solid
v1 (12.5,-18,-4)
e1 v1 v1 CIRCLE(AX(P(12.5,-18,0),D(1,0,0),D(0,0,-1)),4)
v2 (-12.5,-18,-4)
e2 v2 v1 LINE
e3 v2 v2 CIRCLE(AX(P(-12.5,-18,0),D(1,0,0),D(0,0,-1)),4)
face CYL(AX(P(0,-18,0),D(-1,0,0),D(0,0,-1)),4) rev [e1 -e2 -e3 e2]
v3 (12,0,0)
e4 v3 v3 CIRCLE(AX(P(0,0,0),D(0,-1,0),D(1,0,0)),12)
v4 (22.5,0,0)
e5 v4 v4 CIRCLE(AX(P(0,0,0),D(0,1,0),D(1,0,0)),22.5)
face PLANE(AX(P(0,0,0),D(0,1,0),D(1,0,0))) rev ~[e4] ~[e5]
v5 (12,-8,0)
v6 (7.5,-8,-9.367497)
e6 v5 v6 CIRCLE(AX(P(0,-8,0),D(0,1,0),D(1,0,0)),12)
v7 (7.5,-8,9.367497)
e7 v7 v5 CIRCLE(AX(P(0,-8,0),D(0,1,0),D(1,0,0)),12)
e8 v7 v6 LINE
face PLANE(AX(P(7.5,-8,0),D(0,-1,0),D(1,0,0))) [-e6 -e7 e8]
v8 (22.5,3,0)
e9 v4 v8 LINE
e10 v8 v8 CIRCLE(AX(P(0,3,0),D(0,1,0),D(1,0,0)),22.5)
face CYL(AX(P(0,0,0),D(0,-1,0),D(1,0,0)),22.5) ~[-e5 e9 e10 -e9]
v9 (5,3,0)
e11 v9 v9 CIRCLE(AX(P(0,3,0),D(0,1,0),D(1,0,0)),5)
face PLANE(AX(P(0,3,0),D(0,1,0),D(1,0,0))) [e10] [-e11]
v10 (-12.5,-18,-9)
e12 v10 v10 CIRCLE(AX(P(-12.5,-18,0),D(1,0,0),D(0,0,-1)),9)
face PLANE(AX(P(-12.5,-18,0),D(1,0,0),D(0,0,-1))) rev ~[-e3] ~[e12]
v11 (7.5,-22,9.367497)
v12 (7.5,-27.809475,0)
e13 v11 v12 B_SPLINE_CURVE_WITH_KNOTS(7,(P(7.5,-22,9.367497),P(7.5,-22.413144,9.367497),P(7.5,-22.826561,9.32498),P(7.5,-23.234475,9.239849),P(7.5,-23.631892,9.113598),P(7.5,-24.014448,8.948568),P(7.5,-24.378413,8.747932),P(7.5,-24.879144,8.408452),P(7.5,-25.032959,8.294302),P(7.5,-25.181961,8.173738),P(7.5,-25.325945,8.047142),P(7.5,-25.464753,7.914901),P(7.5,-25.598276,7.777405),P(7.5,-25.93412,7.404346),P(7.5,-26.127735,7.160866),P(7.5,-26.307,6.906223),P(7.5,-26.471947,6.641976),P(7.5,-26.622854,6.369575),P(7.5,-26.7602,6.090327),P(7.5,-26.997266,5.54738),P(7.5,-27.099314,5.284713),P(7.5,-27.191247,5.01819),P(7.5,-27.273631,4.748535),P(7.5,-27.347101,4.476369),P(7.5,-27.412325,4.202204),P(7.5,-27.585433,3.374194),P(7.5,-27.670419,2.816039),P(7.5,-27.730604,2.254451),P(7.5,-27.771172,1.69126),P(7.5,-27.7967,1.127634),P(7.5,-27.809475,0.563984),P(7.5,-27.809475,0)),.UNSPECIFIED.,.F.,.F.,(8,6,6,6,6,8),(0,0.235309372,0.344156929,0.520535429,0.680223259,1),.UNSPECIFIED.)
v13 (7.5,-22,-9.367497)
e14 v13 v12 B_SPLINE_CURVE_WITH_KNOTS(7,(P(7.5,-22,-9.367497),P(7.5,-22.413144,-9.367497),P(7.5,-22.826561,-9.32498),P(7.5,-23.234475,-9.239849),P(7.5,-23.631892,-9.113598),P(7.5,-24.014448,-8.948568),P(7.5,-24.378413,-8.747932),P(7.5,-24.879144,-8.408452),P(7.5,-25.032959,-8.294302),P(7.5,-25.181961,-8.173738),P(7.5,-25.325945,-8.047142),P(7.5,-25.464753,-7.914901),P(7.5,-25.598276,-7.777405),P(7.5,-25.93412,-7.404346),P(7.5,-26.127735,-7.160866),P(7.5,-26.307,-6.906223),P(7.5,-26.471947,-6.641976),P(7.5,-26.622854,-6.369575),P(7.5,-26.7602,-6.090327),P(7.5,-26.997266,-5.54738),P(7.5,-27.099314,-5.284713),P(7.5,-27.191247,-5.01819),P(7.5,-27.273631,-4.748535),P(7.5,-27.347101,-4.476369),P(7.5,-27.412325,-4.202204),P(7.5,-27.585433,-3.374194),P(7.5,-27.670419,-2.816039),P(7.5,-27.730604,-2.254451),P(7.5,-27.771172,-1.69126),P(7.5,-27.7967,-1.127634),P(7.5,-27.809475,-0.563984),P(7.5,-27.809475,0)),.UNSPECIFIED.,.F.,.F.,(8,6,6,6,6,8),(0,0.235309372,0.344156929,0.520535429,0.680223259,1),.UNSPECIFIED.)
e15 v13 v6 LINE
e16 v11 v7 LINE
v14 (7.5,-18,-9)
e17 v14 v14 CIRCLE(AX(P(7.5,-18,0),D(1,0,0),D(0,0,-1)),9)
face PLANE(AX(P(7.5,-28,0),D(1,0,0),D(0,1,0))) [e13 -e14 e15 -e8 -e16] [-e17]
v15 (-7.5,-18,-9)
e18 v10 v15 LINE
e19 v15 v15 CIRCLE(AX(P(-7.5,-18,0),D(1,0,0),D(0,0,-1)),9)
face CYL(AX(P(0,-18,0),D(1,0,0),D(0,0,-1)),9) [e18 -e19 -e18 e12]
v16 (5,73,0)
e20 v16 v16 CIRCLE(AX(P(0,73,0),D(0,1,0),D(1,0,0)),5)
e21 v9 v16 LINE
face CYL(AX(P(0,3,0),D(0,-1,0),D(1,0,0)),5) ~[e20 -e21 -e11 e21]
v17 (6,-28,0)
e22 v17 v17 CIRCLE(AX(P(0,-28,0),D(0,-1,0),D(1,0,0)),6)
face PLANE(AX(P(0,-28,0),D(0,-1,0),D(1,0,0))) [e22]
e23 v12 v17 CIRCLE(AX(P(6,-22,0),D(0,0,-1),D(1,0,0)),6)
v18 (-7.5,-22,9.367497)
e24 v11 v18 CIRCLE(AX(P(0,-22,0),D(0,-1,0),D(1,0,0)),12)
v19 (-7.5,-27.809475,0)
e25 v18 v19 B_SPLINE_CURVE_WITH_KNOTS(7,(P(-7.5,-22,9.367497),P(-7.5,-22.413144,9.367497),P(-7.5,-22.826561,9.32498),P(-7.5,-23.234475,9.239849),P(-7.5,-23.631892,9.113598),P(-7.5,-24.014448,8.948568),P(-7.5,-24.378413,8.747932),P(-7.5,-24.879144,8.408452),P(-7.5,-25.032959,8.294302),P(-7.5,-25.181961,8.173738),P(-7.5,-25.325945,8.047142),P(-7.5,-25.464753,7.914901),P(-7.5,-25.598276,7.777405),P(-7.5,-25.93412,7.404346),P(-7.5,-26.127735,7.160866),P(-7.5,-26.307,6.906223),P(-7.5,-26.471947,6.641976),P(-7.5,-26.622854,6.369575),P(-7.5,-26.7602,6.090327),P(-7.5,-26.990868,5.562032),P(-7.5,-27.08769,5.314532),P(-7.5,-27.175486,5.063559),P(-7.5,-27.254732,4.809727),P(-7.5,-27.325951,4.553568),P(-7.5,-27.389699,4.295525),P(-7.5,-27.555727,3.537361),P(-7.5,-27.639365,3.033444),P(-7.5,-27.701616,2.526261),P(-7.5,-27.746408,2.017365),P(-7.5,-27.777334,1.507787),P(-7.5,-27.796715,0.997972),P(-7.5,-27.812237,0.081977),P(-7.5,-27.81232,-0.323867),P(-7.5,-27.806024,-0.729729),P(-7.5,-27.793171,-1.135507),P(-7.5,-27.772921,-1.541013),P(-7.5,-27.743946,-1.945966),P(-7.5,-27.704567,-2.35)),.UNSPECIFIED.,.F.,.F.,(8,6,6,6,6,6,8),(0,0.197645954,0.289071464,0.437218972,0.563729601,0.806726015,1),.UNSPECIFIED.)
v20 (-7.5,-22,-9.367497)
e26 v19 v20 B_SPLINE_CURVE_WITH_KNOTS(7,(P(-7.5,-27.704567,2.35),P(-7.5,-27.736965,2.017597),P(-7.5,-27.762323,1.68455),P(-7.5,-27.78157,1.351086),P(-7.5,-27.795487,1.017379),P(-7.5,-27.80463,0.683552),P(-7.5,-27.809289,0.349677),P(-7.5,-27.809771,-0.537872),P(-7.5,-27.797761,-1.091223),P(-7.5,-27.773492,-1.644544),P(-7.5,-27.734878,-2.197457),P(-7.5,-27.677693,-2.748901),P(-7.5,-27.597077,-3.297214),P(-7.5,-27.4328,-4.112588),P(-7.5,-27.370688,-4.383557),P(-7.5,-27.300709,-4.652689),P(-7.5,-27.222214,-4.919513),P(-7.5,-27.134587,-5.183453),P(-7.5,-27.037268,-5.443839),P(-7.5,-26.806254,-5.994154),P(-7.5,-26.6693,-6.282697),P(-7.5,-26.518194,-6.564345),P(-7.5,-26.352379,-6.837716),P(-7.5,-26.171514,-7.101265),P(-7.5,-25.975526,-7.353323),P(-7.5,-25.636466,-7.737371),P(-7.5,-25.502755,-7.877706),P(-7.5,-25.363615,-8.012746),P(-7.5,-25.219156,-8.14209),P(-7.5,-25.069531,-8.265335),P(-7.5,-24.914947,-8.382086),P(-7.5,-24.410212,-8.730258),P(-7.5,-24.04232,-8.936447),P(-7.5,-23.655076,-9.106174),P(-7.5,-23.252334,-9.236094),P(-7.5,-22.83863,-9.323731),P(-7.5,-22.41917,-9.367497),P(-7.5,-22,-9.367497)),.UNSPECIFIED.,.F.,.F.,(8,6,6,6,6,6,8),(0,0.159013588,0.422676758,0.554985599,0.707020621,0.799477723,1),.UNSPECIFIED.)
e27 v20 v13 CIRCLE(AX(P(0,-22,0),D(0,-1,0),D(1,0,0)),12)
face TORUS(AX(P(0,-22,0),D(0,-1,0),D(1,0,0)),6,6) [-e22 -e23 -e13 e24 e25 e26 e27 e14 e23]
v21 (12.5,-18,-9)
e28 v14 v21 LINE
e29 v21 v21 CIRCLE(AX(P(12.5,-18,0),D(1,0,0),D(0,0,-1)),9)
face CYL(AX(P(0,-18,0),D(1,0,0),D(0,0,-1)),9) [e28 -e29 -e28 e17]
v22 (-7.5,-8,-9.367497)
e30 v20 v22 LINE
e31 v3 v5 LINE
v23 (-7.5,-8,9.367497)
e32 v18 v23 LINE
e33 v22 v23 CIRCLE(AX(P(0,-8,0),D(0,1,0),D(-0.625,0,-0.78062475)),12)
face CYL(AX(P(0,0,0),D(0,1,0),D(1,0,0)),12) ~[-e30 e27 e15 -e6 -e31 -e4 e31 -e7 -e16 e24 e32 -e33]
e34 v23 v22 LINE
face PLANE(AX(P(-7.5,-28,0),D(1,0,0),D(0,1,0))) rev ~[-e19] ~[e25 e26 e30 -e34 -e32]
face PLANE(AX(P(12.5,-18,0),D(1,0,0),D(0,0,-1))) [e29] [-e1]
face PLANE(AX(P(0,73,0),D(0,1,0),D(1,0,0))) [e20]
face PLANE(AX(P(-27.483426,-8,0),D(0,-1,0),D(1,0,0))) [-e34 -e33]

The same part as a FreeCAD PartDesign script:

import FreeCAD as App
import Part
import Sketcher
from FreeCAD import Vector
Q = App.Units.Quantity


def edges_at(feature, points):
    """Names of the edges that pass closest to the given points."""
    edges = feature.Shape.Edges
    near = lambda p: min(range(len(edges)), key=lambda i: edges[i].distToShape(Part.Vertex(*p))[0])
    return sorted({f"Edge{near(p) + 1}" for p in points})


def add_polygon(sketch, points):
    """Adds a closed chain of lines whose ends are joined by coincident constraints."""
    first, n = sketch.GeometryCount, len(points)
    for a, b in zip(points, points[1:] + points[:1]):
        sketch.addGeometry(Part.LineSegment(App.Vector(*a, 0), App.Vector(*b, 0)), False)
    for i in range(n):
        sketch.addConstraint(Sketcher.Constraint("Coincident", first + i, 2, first + (i + 1) % n, 1))

doc = App.newDocument("Part")
body = doc.addObject("PartDesign::Body", "Body")

sketch1 = body.newObject("Sketcher::SketchObject", "Sketch")
sketch1.AttachmentSupport = (doc.getObject("XZ_Plane"), [""])
sketch1.MapMode = "FlatFace"
sketch1.addGeometry(Part.Circle(Vector(0, 0, 0), Vector(0, 0, 1), 22), False)
sketch1.addConstraint(Sketcher.Constraint("Coincident", 0, 3, -1, 1))
sketch1.addConstraint(Sketcher.Constraint("Diameter", 0, Q("45 mm")))
pad1 = body.newObject("PartDesign::Pad", "Pad")
pad1.Profile = sketch1
pad1.Length = 3
pad1.Reversed = True

sketch2 = body.newObject("Sketcher::SketchObject", "Sketch001")
sketch2.AttachmentSupport = (doc.getObject("XZ_Plane"), [""])
sketch2.MapMode = "FlatFace"
sketch2.AttachmentOffset = App.Placement(Vector(0, 0, -3), App.Rotation())
sketch2.addGeometry(Part.Circle(Vector(0, 0, 0), Vector(0, 0, 1), 5), False)
sketch2.addConstraint(Sketcher.Constraint("Coincident", 0, 3, -1, 1))
sketch2.addConstraint(Sketcher.Constraint("Diameter", 0, Q("10 mm")))
pad2 = body.newObject("PartDesign::Pad", "Pad001")
pad2.Profile = sketch2
pad2.Length = 70
pad2.Reversed = True

sketch3 = body.newObject("Sketcher::SketchObject", "Sketch002")
sketch3.AttachmentSupport = (doc.getObject("XZ_Plane"), [""])
sketch3.MapMode = "FlatFace"
sketch3.addGeometry(Part.Circle(Vector(0, 0, 0), Vector(0, 0, 1), 12), False)
sketch3.addConstraint(Sketcher.Constraint("Coincident", 0, 3, -1, 1))
sketch3.addConstraint(Sketcher.Constraint("Diameter", 0, Q("24 mm")))
pad3 = body.newObject("PartDesign::Pad", "Pad002")
pad3.Profile = sketch3
pad3.Length = 28
doc.recompute()

fillet = body.newObject("PartDesign::Fillet", "Fillet")
fillet.Base = (pad3, edges_at(pad3, [(-12, -28, 0)]))
fillet.Radius = 6

sketch4 = body.newObject("Sketcher::SketchObject", "Sketch003")
sketch4.AttachmentSupport = (doc.getObject("XY_Plane"), [""])
sketch4.MapMode = "FlatFace"
add_polygon(sketch4, [(8, -8), (8, -28), (27, -28), (27, -8)])
add_polygon(sketch4, [(-27, -8), (-27, -28), (-8, -28), (-8, -8)])
sketch4.addConstraint(Sketcher.Constraint("Vertical", 0))
sketch4.addConstraint(Sketcher.Constraint("Horizontal", 1))
sketch4.addConstraint(Sketcher.Constraint("Vertical", 2))
sketch4.addConstraint(Sketcher.Constraint("Horizontal", 3))
sketch4.addConstraint(Sketcher.Constraint("Vertical", 4))
sketch4.addConstraint(Sketcher.Constraint("Horizontal", 5))
sketch4.addConstraint(Sketcher.Constraint("Vertical", 6))
sketch4.addConstraint(Sketcher.Constraint("Horizontal", 7))
sketch4.addConstraint(Sketcher.Constraint("Symmetric", 1, 2, 4, 2, -2))
sketch4.addConstraint(Sketcher.Constraint("Symmetric", 3, 2, 6, 2, -2))
sketch4.addConstraint(Sketcher.Constraint("DistanceY", 0, 2, 0, 1, Q("20 mm")))
sketch4.addConstraint(Sketcher.Constraint("DistanceY", 0, 2, -1, 1, Q("28 mm")))
sketch4.addConstraint(Sketcher.Constraint("DistanceX", 5, 2, 0, 2, Q("15 mm")))
sketch4.addConstraint(Sketcher.Constraint("DistanceX", 1, 1, 1, 2, Q("19.983426 mm")))
pocket1 = body.newObject("PartDesign::Pocket", "Pocket")
pocket1.Profile = sketch4
pocket1.Type = "ThroughAll"
pocket1.Midplane = True

sketch5 = body.newObject("Sketcher::SketchObject", "Sketch004")
sketch5.AttachmentSupport = (doc.getObject("YZ_Plane"), [""])
sketch5.MapMode = "FlatFace"
sketch5.AttachmentOffset = App.Placement(Vector(0, 0, 7.5), App.Rotation())
sketch5.addGeometry(Part.Circle(Vector(-18, 0, 0), Vector(0, 0, 1), 4), False)
sketch5.addConstraint(Sketcher.Constraint("PointOnObject", 0, 3, -1))
sketch5.addConstraint(Sketcher.Constraint("Diameter", 0, Q("8 mm")))
sketch5.addConstraint(Sketcher.Constraint("DistanceX", 0, 3, -1, 1, Q("18 mm")))
pocket2 = body.newObject("PartDesign::Pocket", "Pocket001")
pocket2.Profile = sketch5
pocket2.Type = "ThroughAll"
pocket2.Midplane = True

sketch6 = body.newObject("Sketcher::SketchObject", "Sketch005")
sketch6.AttachmentSupport = (doc.getObject("YZ_Plane"), [""])
sketch6.MapMode = "FlatFace"
sketch6.addGeometry(Part.Circle(Vector(-18, 0, 0), Vector(0, 0, 1), 9), False)
sketch6.addGeometry(Part.Circle(Vector(-18, 0, 0), Vector(0, 0, 1), 4), False)
sketch6.addConstraint(Sketcher.Constraint("Coincident", 1, 3, 0, 3))
sketch6.addConstraint(Sketcher.Constraint("PointOnObject", 0, 3, -1))
sketch6.addConstraint(Sketcher.Constraint("Diameter", 0, Q("18 mm")))
sketch6.addConstraint(Sketcher.Constraint("Diameter", 1, Q("8 mm")))
sketch6.addConstraint(Sketcher.Constraint("DistanceX", 0, 3, -1, 1, Q("18 mm")))
pad4 = body.newObject("PartDesign::Pad", "Pad003")
pad4.Profile = sketch6
pad4.Length = 25
pad4.Midplane = True

doc.recompute()
